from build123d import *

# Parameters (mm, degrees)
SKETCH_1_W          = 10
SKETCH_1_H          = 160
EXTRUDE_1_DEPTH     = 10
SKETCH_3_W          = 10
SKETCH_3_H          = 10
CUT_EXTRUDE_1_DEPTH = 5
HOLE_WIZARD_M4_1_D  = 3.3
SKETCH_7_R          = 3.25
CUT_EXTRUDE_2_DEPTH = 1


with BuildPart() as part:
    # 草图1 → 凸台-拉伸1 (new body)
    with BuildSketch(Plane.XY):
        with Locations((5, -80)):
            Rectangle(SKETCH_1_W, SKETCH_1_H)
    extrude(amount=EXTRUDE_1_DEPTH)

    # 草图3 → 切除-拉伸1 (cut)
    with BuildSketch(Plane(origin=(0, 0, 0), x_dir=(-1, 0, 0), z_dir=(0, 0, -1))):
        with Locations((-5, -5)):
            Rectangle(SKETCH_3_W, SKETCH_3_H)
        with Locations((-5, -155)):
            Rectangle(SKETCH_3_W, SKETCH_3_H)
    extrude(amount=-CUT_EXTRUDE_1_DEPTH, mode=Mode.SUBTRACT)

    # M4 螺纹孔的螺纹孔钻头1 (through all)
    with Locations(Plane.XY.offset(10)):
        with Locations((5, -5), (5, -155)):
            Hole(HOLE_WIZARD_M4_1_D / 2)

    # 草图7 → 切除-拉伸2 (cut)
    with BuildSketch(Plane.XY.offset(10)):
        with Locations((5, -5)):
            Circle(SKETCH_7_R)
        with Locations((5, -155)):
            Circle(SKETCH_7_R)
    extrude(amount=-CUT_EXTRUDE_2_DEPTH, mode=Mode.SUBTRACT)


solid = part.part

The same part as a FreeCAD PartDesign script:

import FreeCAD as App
import Part
import Sketcher

doc = App.newDocument("Part")
body = doc.addObject("PartDesign::Body", "Body")

sketch1 = body.newObject("Sketcher::SketchObject", "Sketch")
sketch1.AttachmentSupport = (doc.getObject("XY_Plane"), [""])
sketch1.MapMode = "FlatFace"
sketch1.addGeometry([
    Part.LineSegment(App.Vector(0, 0, 0), App.Vector(0, -160, 0)),
    Part.LineSegment(App.Vector(0, -160, 0), App.Vector(10, -160, 0)),
    Part.LineSegment(App.Vector(10, -160, 0), App.Vector(10, 0, 0)),
    Part.LineSegment(App.Vector(10, 0, 0), App.Vector(0, 0, 0)),
], False)
sketch1.addConstraint([
    Sketcher.Constraint("Coincident", 0, 2, 1, 1),
    Sketcher.Constraint("Coincident", 1, 2, 2, 1),
    Sketcher.Constraint("Coincident", 2, 2, 3, 1),
    Sketcher.Constraint("Coincident", 3, 2, 0, 1),
    Sketcher.Constraint("Vertical", 0),
    Sketcher.Constraint("Horizontal", 1),
    Sketcher.Constraint("Vertical", 2),
    Sketcher.Constraint("Horizontal", 3),
    Sketcher.Constraint("Coincident", 3, 2, -1, 1),
    Sketcher.Constraint("DistanceX", 1, 1, 1, 2, 10.0),
    Sketcher.Constraint("DistanceY", 0, 2, 0, 1, 160.0),
])
pad1 = body.newObject("PartDesign::Pad", "Pad")
pad1.Profile = sketch1
pad1.Length = 10

sketch2 = body.newObject("Sketcher::SketchObject", "Sketch001")
sketch2.AttachmentSupport = (doc.getObject("XY_Plane"), [""])
sketch2.MapMode = "FlatFace"
sketch2.addGeometry([
    Part.LineSegment(App.Vector(10, 0, 0), App.Vector(10, -10, 0)),
    Part.LineSegment(App.Vector(10, -10, 0), App.Vector(0, -10, 0)),
    Part.LineSegment(App.Vector(0, -10, 0), App.Vector(0, 0, 0)),
    Part.LineSegment(App.Vector(0, 0, 0), App.Vector(10, 0, 0)),
    Part.LineSegment(App.Vector(10, -150, 0), App.Vector(10, -160, 0)),
    Part.LineSegment(App.Vector(10, -160, 0), App.Vector(0, -160, 0)),
    Part.LineSegment(App.Vector(0, -160, 0), App.Vector(0, -150, 0)),
    Part.LineSegment(App.Vector(0, -150, 0), App.Vector(10, -150, 0)),
], False)
sketch2.addConstraint([
    Sketcher.Constraint("Coincident", 0, 2, 1, 1),
    Sketcher.Constraint("Coincident", 1, 2, 2, 1),
    Sketcher.Constraint("Coincident", 2, 2, 3, 1),
    Sketcher.Constraint("Coincident", 3, 2, 0, 1),
    Sketcher.Constraint("Coincident", 4, 2, 5, 1),
    Sketcher.Constraint("Coincident", 5, 2, 6, 1),
    Sketcher.Constraint("Coincident", 6, 2, 7, 1),
    Sketcher.Constraint("Coincident", 7, 2, 4, 1),
    Sketcher.Constraint("Vertical", 0),
    Sketcher.Constraint("Horizontal", 1),
    Sketcher.Constraint("Vertical", 2),
    Sketcher.Constraint("Horizontal", 3),
    Sketcher.Constraint("Vertical", 4),
    Sketcher.Constraint("Horizontal", 5),
    Sketcher.Constraint("Vertical", 6),
    Sketcher.Constraint("Horizontal", 7),
    Sketcher.Constraint("Coincident", 2, 2, -1, 1),
    Sketcher.Constraint("PointOnObject", 5, 2, -2),
    Sketcher.Constraint("Vertical", 3, 2, 4, 2),
    Sketcher.Constraint("Equal", 7, 0),
    Sketcher.Constraint("Equal", 2, 4),
    Sketcher.Constraint("DistanceX", 1, 2, 1, 1, 10.0),
    Sketcher.Constraint("DistanceY", 4, 2, -1, 1, 160.0),
])
pocket1 = body.newObject("PartDesign::Pocket", "Pocket")
pocket1.Profile = sketch2
pocket1.Length = 5
pocket1.Reversed = True

sketch3 = body.newObject("Sketcher::SketchObject", "Sketch002")
sketch3.AttachmentSupport = (doc.getObject("XY_Plane"), [""])
sketch3.MapMode = "FlatFace"
sketch3.AttachmentOffset = App.Placement(App.Vector(0, 0, 10), App.Rotation())
sketch3.addGeometry([
    Part.Circle(App.Vector(5, -5, 0), App.Vector(0, 0, 1), 1.6),
    Part.Circle(App.Vector(5, -155, 0), App.Vector(0, 0, 1), 1.6),
], False)
sketch3.addConstraint([
    Sketcher.Constraint("Equal", 0, 1),
    Sketcher.Constraint("Vertical", 0, 3, 1, 3),
    Sketcher.Constraint("Diameter", 0, 3.3),
    Sketcher.Constraint("DistanceX", -1, 1, 0, 3, 5.0),
    Sketcher.Constraint("DistanceY", 0, 3, -1, 1, 5.0),
    Sketcher.Constraint("DistanceY", 1, 3, -1, 1, 155.0),
])
doc.recompute()
hole = body.newObject("PartDesign::Hole", "Hole")
hole.Profile = sketch3
hole.ThreadType = "None"
hole.Diameter = 3.3
hole.DepthType = "ThroughAll"

sketch4 = body.newObject("Sketcher::SketchObject", "Sketch003")
sketch4.AttachmentSupport = (doc.getObject("XY_Plane"), [""])
sketch4.MapMode = "FlatFace"
sketch4.AttachmentOffset = App.Placement(App.Vector(0, 0, 10), App.Rotation())
sketch4.addGeometry([
    Part.Circle(App.Vector(5, -5, 0), App.Vector(0, 0, 1), 3.2),
    Part.Circle(App.Vector(5, -155, 0), App.Vector(0, 0, 1), 3.2),
], False)
sketch4.addConstraint([
    Sketcher.Constraint("Equal", 0, 1),
    Sketcher.Constraint("Vertical", 0, 3, 1, 3),
    Sketcher.Constraint("Diameter", 0, 6.5),
    Sketcher.Constraint("DistanceX", -1, 1, 0, 3, 5.0),
    Sketcher.Constraint("DistanceY", 0, 3, -1, 1, 5.0),
    Sketcher.Constraint("DistanceY", 1, 3, -1, 1, 155.0),
])
pocket2 = body.newObject("PartDesign::Pocket", "Pocket001")
pocket2.Profile = sketch4
pocket2.Length = 1

doc.recompute()
